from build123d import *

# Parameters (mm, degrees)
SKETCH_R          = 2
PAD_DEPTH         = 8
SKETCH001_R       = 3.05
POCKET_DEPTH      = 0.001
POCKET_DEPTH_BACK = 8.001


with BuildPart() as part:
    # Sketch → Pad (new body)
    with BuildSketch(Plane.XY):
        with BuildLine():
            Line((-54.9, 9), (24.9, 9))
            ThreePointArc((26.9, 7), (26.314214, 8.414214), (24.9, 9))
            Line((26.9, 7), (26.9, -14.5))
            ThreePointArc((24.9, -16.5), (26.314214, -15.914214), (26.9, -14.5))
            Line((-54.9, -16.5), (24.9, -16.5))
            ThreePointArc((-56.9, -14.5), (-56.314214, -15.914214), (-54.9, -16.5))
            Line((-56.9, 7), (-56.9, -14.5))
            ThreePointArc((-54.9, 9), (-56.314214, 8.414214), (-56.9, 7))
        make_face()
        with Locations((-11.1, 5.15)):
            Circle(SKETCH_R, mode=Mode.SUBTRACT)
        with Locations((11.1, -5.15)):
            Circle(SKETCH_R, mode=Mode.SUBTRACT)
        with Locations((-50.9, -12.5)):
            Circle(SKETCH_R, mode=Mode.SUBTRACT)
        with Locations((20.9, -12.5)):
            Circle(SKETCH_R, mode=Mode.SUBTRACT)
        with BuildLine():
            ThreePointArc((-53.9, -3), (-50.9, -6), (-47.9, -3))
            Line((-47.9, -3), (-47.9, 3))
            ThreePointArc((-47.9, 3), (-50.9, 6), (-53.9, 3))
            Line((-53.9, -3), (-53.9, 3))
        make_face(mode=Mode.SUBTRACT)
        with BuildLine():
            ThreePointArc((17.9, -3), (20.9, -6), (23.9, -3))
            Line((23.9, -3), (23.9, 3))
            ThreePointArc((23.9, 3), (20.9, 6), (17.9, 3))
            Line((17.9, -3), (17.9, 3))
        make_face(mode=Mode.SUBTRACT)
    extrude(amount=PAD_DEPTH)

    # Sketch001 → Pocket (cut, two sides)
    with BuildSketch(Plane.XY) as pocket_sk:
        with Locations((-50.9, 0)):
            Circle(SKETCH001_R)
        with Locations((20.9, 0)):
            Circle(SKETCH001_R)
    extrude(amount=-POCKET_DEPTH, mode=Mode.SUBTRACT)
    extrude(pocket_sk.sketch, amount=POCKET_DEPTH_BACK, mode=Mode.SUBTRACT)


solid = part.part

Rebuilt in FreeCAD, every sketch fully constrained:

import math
import FreeCAD as App
import Part
import Sketcher

doc = App.newDocument("Part")
body = doc.addObject("PartDesign::Body", "Body")

# Sketch on XY plane
sketch1 = doc.addObject("Sketcher::SketchObject", "Sketch")
body.addObject(sketch1)
sketch1.AttachmentSupport = (doc.XY_Plane, [""])
sketch1.MapMode = "FlatFace"
sketch1.addGeometry(Part.LineSegment(App.Vector(24.9, 9, 0), App.Vector(-54.9, 9, 0)), False)
sketch1.addGeometry(Part.ArcOfCircle(Part.Circle(App.Vector(-54.900001, 7.000001, 0), App.Vector(0, 0, 1), 1.999999), math.radians(89.999957), math.radians(180.000043)), False)
sketch1.addGeometry(Part.LineSegment(App.Vector(-56.9, 7, 0), App.Vector(-56.9, -14.5, 0)), False)
sketch1.addGeometry(Part.ArcOfCircle(Part.Circle(App.Vector(-54.900001, -14.500001, 0), App.Vector(0, 0, 1), 1.999999), math.radians(179.999957), math.radians(270.000043)), False)
sketch1.addGeometry(Part.LineSegment(App.Vector(-54.9, -16.5, 0), App.Vector(24.9, -16.5, 0)), False)
sketch1.addGeometry(Part.ArcOfCircle(Part.Circle(App.Vector(24.900001, -14.500001, 0), App.Vector(0, 0, 1), 1.999999), math.radians(-90.000043), math.radians(0.000043)), False)
sketch1.addGeometry(Part.LineSegment(App.Vector(26.9, -14.5, 0), App.Vector(26.9, 7, 0)), False)
sketch1.addGeometry(Part.ArcOfCircle(Part.Circle(App.Vector(24.900001, 7.000001, 0), App.Vector(0, 0, 1), 1.999999), math.radians(-0.000043), math.radians(90.000043)), False)
sketch1.addGeometry(Part.Circle(App.Vector(20.9, -12.5, 0), App.Vector(0, 0, 1), 2), False)
sketch1.addGeometry(Part.Circle(App.Vector(11.1, -5.15, 0), App.Vector(0, 0, 1), 2), False)
sketch1.addGeometry(Part.Circle(App.Vector(-50.9, -12.5, 0), App.Vector(0, 0, 1), 2), False)
sketch1.addGeometry(Part.LineSegment(App.Vector(17.9, -3, 0), App.Vector(17.9, 3, 0)), False)
sketch1.addGeometry(Part.ArcOfCircle(Part.Circle(App.Vector(20.9, 3, 0), App.Vector(0, 0, 1), 3), math.radians(0), math.radians(180)), False)
sketch1.addGeometry(Part.LineSegment(App.Vector(23.9, 3, 0), App.Vector(23.9, -3, 0)), False)
sketch1.addGeometry(Part.ArcOfCircle(Part.Circle(App.Vector(20.9, -3, 0), App.Vector(0, 0, 1), 3), math.radians(180), math.radians(360)), False)
sketch1.addGeometry(Part.Circle(App.Vector(-11.1, 5.15, 0), App.Vector(0, 0, 1), 2), False)
sketch1.addGeometry(Part.LineSegment(App.Vector(-53.9, -3, 0), App.Vector(-53.9, 3, 0)), False)
sketch1.addGeometry(Part.ArcOfCircle(Part.Circle(App.Vector(-50.9, 3, 0), App.Vector(0, 0, 1), 3), math.radians(0), math.radians(180)), False)
sketch1.addGeometry(Part.LineSegment(App.Vector(-47.9, 3, 0), App.Vector(-47.9, -3, 0)), False)
sketch1.addGeometry(Part.ArcOfCircle(Part.Circle(App.Vector(-50.9, -3, 0), App.Vector(0, 0, 1), 3), math.radians(180), math.radians(360)), False)
sketch1.addConstraint(Sketcher.Constraint("Tangent", 0, 2, 1, 1))
sketch1.addConstraint(Sketcher.Constraint("Tangent", 1, 2, 2, 1))
sketch1.addConstraint(Sketcher.Constraint("Tangent", 2, 2, 3, 1))
sketch1.addConstraint(Sketcher.Constraint("Tangent", 3, 2, 4, 1))
sketch1.addConstraint(Sketcher.Constraint("Tangent", 4, 2, 5, 1))
sketch1.addConstraint(Sketcher.Constraint("Tangent", 5, 2, 6, 1))
sketch1.addConstraint(Sketcher.Constraint("Tangent", 6, 2, 7, 1))
sketch1.addConstraint(Sketcher.Constraint("Tangent", 7, 2, 0, 1))
sketch1.addConstraint(Sketcher.Constraint("Tangent", 11, 2, 12, 2))
sketch1.addConstraint(Sketcher.Constraint("Tangent", 12, 1, 13, 1))
sketch1.addConstraint(Sketcher.Constraint("Tangent", 13, 2, 14, 2))
sketch1.addConstraint(Sketcher.Constraint("Tangent", 14, 1, 11, 1))
sketch1.addConstraint(Sketcher.Constraint("Tangent", 16, 2, 17, 2))
sketch1.addConstraint(Sketcher.Constraint("Tangent", 17, 1, 18, 1))
sketch1.addConstraint(Sketcher.Constraint("Tangent", 18, 2, 19, 2))
sketch1.addConstraint(Sketcher.Constraint("Tangent", 19, 1, 16, 1))
sketch1.addConstraint(Sketcher.Constraint("Horizontal", 0))
sketch1.addConstraint(Sketcher.Constraint("Vertical", 2))
sketch1.addConstraint(Sketcher.Constraint("Horizontal", 4))
sketch1.addConstraint(Sketcher.Constraint("Vertical", 6))
sketch1.addConstraint(Sketcher.Constraint("Vertical", 11))
sketch1.addConstraint(Sketcher.Constraint("Vertical", 13))
sketch1.addConstraint(Sketcher.Constraint("Vertical", 16))
sketch1.addConstraint(Sketcher.Constraint("Vertical", 18))
sketch1.addConstraint(Sketcher.Constraint("Equal", 1, 3))
sketch1.addConstraint(Sketcher.Constraint("Equal", 3, 5))
sketch1.addConstraint(Sketcher.Constraint("Equal", 5, 7))
sketch1.addConstraint(Sketcher.Constraint("Equal", 7, 8))
sketch1.addConstraint(Sketcher.Constraint("Equal", 8, 9))
sketch1.addConstraint(Sketcher.Constraint("Equal", 9, 10))
sketch1.addConstraint(Sketcher.Constraint("Equal", 10, 15))
sketch1.addConstraint(Sketcher.Constraint("Equal", 14, 17))
sketch1.addConstraint(Sketcher.Constraint("Symmetric", 9, 3, 15, 3, -1, 1))
sketch1.addConstraint(Sketcher.Constraint("Horizontal", 8, 3, 10, 3))
sketch1.addConstraint(Sketcher.Constraint("Horizontal", 12, 3, 17, 3))
sketch1.addConstraint(Sketcher.Constraint("Horizontal", 14, 3, 19, 3))
sketch1.addConstraint(Sketcher.Constraint("Vertical", 8, 3, 12, 3))
sketch1.addConstraint(Sketcher.Constraint("Vertical", 10, 3, 17, 3))
sketch1.addConstraint(Sketcher.Constraint("Diameter", 8, 4.0))
sketch1.addConstraint(Sketcher.Constraint("Radius", 12, 3.0))
sketch1.addConstraint(Sketcher.Constraint("DistanceY", 11, 1, 11, 2, 6.0))
sketch1.addConstraint(Sketcher.Constraint("DistanceX", 0, 2, 0, 1, 79.8))
sketch1.addConstraint(Sketcher.Constraint("DistanceY", 2, 2, 2, 1, 21.5))
sketch1.addConstraint(Sketcher.Constraint("DistanceY", -1, 1, 1, 3, 7.000001))
sketch1.addConstraint(Sketcher.Constraint("DistanceY", -1, 1, 12, 3, 3.0))
sketch1.addConstraint(Sketcher.Constraint("DistanceX", 8, 3, 5, 3, 4.000001))
sketch1.addConstraint(Sketcher.Constraint("DistanceY", 5, 3, 8, 3, 2.000001))
sketch1.addConstraint(Sketcher.Constraint("DistanceX", 3, 3, 9, 3, 66.000001))
sketch1.addConstraint(Sketcher.Constraint("DistanceX", 3, 3, 10, 3, 4.000001))
sketch1.addConstraint(Sketcher.Constraint("DistanceX", 15, 3, 12, 3, 32.0))
sketch1.addConstraint(Sketcher.Constraint("DistanceY", 9, 3, 15, 3, 10.3))
pad1 = doc.addObject("PartDesign::Pad", "Pad")
body.addObject(pad1)
pad1.Profile = sketch1
pad1.Length = 8

# Sketch on XY plane
sketch2 = doc.addObject("Sketcher::SketchObject", "Sketch001")
body.addObject(sketch2)
sketch2.AttachmentSupport = (doc.XY_Plane, [""])
sketch2.MapMode = "FlatFace"
sketch2.addGeometry(Part.Circle(App.Vector(-50.9, 0, 0), App.Vector(0, 0, 1), 3.05), False)
sketch2.addGeometry(Part.Circle(App.Vector(20.9, 0, 0), App.Vector(0, 0, 1), 3.05), False)
sketch2.addConstraint(Sketcher.Constraint("Equal", 0, 1))
sketch2.addConstraint(Sketcher.Constraint("PointOnObject", 0, 3, -1))
sketch2.addConstraint(Sketcher.Constraint("PointOnObject", 1, 3, -1))
sketch2.addConstraint(Sketcher.Constraint("Diameter", 0, 6.1))
sketch2.addConstraint(Sketcher.Constraint("DistanceX", 0, 3, -1, 1, 50.9))
sketch2.addConstraint(Sketcher.Constraint("DistanceX", -1, 1, 1, 3, 20.9))
pocket1 = doc.addObject("PartDesign::Pocket", "Pocket")
body.addObject(pocket1)
pocket1.Profile = sketch2
pocket1.Type = "ThroughAll"
pocket1.Midplane = True

doc.recompute()
